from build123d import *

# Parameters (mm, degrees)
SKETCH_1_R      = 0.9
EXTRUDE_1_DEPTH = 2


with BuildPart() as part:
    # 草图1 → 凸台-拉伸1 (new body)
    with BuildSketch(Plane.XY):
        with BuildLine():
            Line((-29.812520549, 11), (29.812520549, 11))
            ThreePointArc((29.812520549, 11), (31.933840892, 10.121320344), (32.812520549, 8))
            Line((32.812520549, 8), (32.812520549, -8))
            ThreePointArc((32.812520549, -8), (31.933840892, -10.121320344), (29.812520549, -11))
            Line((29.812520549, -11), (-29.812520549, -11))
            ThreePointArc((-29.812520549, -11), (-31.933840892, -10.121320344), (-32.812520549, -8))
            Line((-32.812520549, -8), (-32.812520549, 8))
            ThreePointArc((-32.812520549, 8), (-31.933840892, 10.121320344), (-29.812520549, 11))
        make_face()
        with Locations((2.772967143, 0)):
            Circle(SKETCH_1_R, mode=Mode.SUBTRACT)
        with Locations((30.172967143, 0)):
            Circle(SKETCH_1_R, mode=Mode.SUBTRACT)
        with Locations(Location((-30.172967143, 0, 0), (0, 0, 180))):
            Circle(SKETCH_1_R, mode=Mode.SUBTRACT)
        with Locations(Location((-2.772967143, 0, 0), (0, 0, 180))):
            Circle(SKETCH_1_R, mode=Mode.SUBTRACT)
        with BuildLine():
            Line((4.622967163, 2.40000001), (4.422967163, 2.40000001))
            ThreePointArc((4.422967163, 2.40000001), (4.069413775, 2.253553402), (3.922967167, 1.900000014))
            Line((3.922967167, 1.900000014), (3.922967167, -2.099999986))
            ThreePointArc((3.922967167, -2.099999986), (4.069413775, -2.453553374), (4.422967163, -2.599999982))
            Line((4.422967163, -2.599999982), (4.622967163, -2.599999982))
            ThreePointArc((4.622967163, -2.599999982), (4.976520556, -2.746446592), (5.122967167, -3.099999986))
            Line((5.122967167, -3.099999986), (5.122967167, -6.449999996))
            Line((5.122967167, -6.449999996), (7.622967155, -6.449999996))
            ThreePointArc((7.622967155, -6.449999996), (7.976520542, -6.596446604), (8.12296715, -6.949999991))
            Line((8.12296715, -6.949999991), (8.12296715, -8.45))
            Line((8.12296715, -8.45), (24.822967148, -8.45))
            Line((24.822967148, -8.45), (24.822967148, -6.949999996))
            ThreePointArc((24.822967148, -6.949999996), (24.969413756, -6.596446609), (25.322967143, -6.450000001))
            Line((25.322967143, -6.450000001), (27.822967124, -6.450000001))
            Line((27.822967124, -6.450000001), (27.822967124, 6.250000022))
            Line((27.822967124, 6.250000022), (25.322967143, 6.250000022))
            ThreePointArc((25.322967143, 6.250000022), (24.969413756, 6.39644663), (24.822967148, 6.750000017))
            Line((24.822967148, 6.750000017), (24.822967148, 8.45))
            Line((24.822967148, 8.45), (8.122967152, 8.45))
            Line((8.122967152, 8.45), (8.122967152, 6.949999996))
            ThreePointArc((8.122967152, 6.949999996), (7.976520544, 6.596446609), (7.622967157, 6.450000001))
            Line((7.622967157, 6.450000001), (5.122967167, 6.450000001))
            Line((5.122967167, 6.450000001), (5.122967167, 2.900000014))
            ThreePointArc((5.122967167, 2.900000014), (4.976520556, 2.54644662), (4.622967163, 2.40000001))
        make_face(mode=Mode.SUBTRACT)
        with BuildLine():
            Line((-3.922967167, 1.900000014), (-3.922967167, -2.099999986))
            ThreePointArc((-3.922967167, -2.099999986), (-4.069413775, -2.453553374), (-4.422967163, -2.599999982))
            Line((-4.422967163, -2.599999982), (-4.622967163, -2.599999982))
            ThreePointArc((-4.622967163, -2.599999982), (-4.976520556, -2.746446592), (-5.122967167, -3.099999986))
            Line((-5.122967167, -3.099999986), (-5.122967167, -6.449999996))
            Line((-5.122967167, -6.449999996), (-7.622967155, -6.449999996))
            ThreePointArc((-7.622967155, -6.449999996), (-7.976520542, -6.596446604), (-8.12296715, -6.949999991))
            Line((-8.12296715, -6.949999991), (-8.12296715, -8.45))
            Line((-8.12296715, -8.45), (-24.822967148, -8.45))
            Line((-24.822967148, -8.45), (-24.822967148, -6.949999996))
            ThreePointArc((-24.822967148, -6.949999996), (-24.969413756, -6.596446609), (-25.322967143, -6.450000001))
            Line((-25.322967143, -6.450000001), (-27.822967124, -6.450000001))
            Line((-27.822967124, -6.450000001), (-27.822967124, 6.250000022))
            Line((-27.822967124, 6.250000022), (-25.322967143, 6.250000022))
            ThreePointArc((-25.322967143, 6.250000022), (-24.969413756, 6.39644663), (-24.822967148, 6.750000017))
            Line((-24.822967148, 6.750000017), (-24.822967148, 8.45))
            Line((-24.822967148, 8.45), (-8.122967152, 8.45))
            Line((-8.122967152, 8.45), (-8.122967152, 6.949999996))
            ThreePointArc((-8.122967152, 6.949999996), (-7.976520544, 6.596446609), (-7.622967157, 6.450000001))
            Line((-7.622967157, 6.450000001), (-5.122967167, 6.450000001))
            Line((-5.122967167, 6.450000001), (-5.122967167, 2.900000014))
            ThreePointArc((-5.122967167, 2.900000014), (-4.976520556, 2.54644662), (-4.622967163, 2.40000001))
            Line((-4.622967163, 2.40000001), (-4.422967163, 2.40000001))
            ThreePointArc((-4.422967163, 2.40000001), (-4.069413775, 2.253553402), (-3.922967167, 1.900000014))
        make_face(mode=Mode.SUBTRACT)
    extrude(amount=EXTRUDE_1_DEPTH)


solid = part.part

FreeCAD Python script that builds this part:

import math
import FreeCAD as App
import Part
import Sketcher
Q = App.Units.Quantity

doc = App.newDocument("Part")
body = doc.addObject("PartDesign::Body", "Body")

# Sketch on XY plane
sketch1 = doc.addObject("Sketcher::SketchObject", "Sketch")
body.addObject(sketch1)
sketch1.AttachmentSupport = (doc.XY_Plane, [""])
sketch1.MapMode = "FlatFace"
sketch1.addGeometry(Part.LineSegment(App.Vector(29.812521, 11, 0), App.Vector(-29.812521, 11, 0)), False)
sketch1.addGeometry(Part.ArcOfCircle(Part.Circle(App.Vector(-29.812521, 8, 0), App.Vector(0, 0, 1), 3), math.radians(90), math.radians(180)), False)
sketch1.addGeometry(Part.LineSegment(App.Vector(-32.812521, 8, 0), App.Vector(-32.812521, -8, 0)), False)
sketch1.addGeometry(Part.ArcOfCircle(Part.Circle(App.Vector(-29.812521, -8, 0), App.Vector(0, 0, 1), 3), math.radians(180), math.radians(270)), False)
sketch1.addGeometry(Part.LineSegment(App.Vector(-29.812521, -11, 0), App.Vector(29.812521, -11, 0)), False)
sketch1.addGeometry(Part.ArcOfCircle(Part.Circle(App.Vector(29.812521, -8, 0), App.Vector(0, 0, 1), 3), math.radians(-90), math.radians(0)), False)
sketch1.addGeometry(Part.LineSegment(App.Vector(32.812521, -8, 0), App.Vector(32.812521, 8, 0)), False)
sketch1.addGeometry(Part.ArcOfCircle(Part.Circle(App.Vector(29.812521, 8, 0), App.Vector(0, 0, 1), 3), math.radians(0), math.radians(90)), False)
sketch1.addGeometry(Part.Circle(App.Vector(30.172967, 0, 0), App.Vector(0, 0, 1), 0.9), False)
sketch1.addGeometry(Part.ArcOfCircle(Part.Circle(App.Vector(4.622967, 2.9, 0), App.Vector(0, 0, 1), 0.5), math.radians(-90), math.radians(0)), False)
sketch1.addGeometry(Part.LineSegment(App.Vector(5.122967, 2.9, 0), App.Vector(5.122967, 6.45, 0)), False)
sketch1.addGeometry(Part.LineSegment(App.Vector(5.122967, 6.45, 0), App.Vector(7.622967, 6.45, 0)), False)
sketch1.addGeometry(Part.ArcOfCircle(Part.Circle(App.Vector(7.622967, 6.95, 0), App.Vector(0, 0, 1), 0.5), math.radians(-90), math.radians(0)), False)
sketch1.addGeometry(Part.LineSegment(App.Vector(8.122967, 6.95, 0), App.Vector(8.122967, 8.45, 0)), False)
sketch1.addGeometry(Part.LineSegment(App.Vector(8.122967, 8.45, 0), App.Vector(24.822967, 8.45, 0)), False)
sketch1.addGeometry(Part.LineSegment(App.Vector(24.822967, 8.45, 0), App.Vector(24.822967, 6.75, 0)), False)
sketch1.addGeometry(Part.ArcOfCircle(Part.Circle(App.Vector(25.322967, 6.75, 0), App.Vector(0, 0, 1), 0.5), math.radians(180), math.radians(270)), False)
sketch1.addGeometry(Part.LineSegment(App.Vector(25.322967, 6.25, 0), App.Vector(27.822967, 6.25, 0)), False)
sketch1.addGeometry(Part.LineSegment(App.Vector(27.822967, 6.25, 0), App.Vector(27.822967, -6.45, 0)), False)
sketch1.addGeometry(Part.LineSegment(App.Vector(27.822967, -6.45, 0), App.Vector(25.322967, -6.45, 0)), False)
sketch1.addGeometry(Part.ArcOfCircle(Part.Circle(App.Vector(25.322967, -6.95, 0), App.Vector(0, 0, 1), 0.5), math.radians(90), math.radians(180)), False)
sketch1.addGeometry(Part.LineSegment(App.Vector(24.822967, -6.95, 0), App.Vector(24.822967, -8.45, 0)), False)
sketch1.addGeometry(Part.LineSegment(App.Vector(24.822967, -8.45, 0), App.Vector(8.122967, -8.45, 0)), False)
sketch1.addGeometry(Part.LineSegment(App.Vector(8.122967, -8.45, 0), App.Vector(8.122967, -6.95, 0)), False)
sketch1.addGeometry(Part.ArcOfCircle(Part.Circle(App.Vector(7.622967, -6.95, 0), App.Vector(0, 0, 1), 0.5), math.radians(0), math.radians(90)), False)
sketch1.addGeometry(Part.LineSegment(App.Vector(7.622967, -6.45, 0), App.Vector(5.122967, -6.45, 0)), False)
sketch1.addGeometry(Part.LineSegment(App.Vector(5.122967, -6.45, 0), App.Vector(5.122967, -3.1, 0)), False)
sketch1.addGeometry(Part.ArcOfCircle(Part.Circle(App.Vector(4.622967, -3.1, 0), App.Vector(0, 0, 1), 0.5), math.radians(0), math.radians(90)), False)
sketch1.addGeometry(Part.LineSegment(App.Vector(4.622967, -2.6, 0), App.Vector(4.422967, -2.6, 0)), False)
sketch1.addGeometry(Part.ArcOfCircle(Part.Circle(App.Vector(4.422967, -2.1, 0), App.Vector(0, 0, 1), 0.5), math.radians(180), math.radians(270)), False)
sketch1.addGeometry(Part.LineSegment(App.Vector(3.922967, -2.1, 0), App.Vector(3.922967, 1.9, 0)), False)
sketch1.addGeometry(Part.ArcOfCircle(Part.Circle(App.Vector(4.422967, 1.9, 0), App.Vector(0, 0, 1), 0.5), math.radians(90), math.radians(180)), False)
sketch1.addGeometry(Part.LineSegment(App.Vector(4.422967, 2.4, 0), App.Vector(4.622967, 2.4, 0)), False)
sketch1.addGeometry(Part.Circle(App.Vector(2.772967, 0, 0), App.Vector(0, 0, 1), 0.9), False)
sketch1.addGeometry(Part.Circle(App.Vector(-2.772967, 0, 0), App.Vector(0, 0, 1), 0.9), False)
sketch1.addGeometry(Part.LineSegment(App.Vector(-3.922967, 1.9, 0), App.Vector(-3.922967, -2.1, 0)), False)
sketch1.addGeometry(Part.ArcOfCircle(Part.Circle(App.Vector(-4.422967, -2.1, 0), App.Vector(0, 0, 1), 0.5), math.radians(-90), math.radians(0)), False)
sketch1.addGeometry(Part.LineSegment(App.Vector(-4.422967, -2.6, 0), App.Vector(-4.622967, -2.6, 0)), False)
sketch1.addGeometry(Part.ArcOfCircle(Part.Circle(App.Vector(-4.622967, -3.1, 0), App.Vector(0, 0, 1), 0.5), math.radians(90), math.radians(180)), False)
sketch1.addGeometry(Part.LineSegment(App.Vector(-5.122967, -3.1, 0), App.Vector(-5.122967, -6.45, 0)), False)
sketch1.addGeometry(Part.LineSegment(App.Vector(-5.122967, -6.45, 0), App.Vector(-7.622967, -6.45, 0)), False)
sketch1.addGeometry(Part.ArcOfCircle(Part.Circle(App.Vector(-7.622967, -6.95, 0), App.Vector(0, 0, 1), 0.5), math.radians(90), math.radians(180)), False)
sketch1.addGeometry(Part.LineSegment(App.Vector(-8.122967, -6.95, 0), App.Vector(-8.122967, -8.45, 0)), False)
sketch1.addGeometry(Part.LineSegment(App.Vector(-8.122967, -8.45, 0), App.Vector(-24.822967, -8.45, 0)), False)
sketch1.addGeometry(Part.LineSegment(App.Vector(-24.822967, -8.45, 0), App.Vector(-24.822967, -6.95, 0)), False)
sketch1.addGeometry(Part.ArcOfCircle(Part.Circle(App.Vector(-25.322967, -6.95, 0), App.Vector(0, 0, 1), 0.5), math.radians(0), math.radians(90)), False)
sketch1.addGeometry(Part.LineSegment(App.Vector(-25.322967, -6.45, 0), App.Vector(-27.822967, -6.45, 0)), False)
sketch1.addGeometry(Part.LineSegment(App.Vector(-27.822967, -6.45, 0), App.Vector(-27.822967, 6.25, 0)), False)
sketch1.addGeometry(Part.LineSegment(App.Vector(-27.822967, 6.25, 0), App.Vector(-25.322967, 6.25, 0)), False)
sketch1.addGeometry(Part.ArcOfCircle(Part.Circle(App.Vector(-25.322967, 6.75, 0), App.Vector(0, 0, 1), 0.5), math.radians(-90), math.radians(0)), False)
sketch1.addGeometry(Part.LineSegment(App.Vector(-24.822967, 6.75, 0), App.Vector(-24.822967, 8.45, 0)), False)
sketch1.addGeometry(Part.LineSegment(App.Vector(-24.822967, 8.45, 0), App.Vector(-8.122967, 8.45, 0)), False)
sketch1.addGeometry(Part.LineSegment(App.Vector(-8.122967, 8.45, 0), App.Vector(-8.122967, 6.95, 0)), False)
sketch1.addGeometry(Part.ArcOfCircle(Part.Circle(App.Vector(-7.622967, 6.95, 0), App.Vector(0, 0, 1), 0.5), math.radians(180), math.radians(270)), False)
sketch1.addGeometry(Part.LineSegment(App.Vector(-7.622967, 6.45, 0), App.Vector(-5.122967, 6.45, 0)), False)
sketch1.addGeometry(Part.LineSegment(App.Vector(-5.122967, 6.45, 0), App.Vector(-5.122967, 2.9, 0)), False)
sketch1.addGeometry(Part.ArcOfCircle(Part.Circle(App.Vector(-4.622967, 2.9, 0), App.Vector(0, 0, 1), 0.5), math.radians(180), math.radians(270)), False)
sketch1.addGeometry(Part.LineSegment(App.Vector(-4.622967, 2.4, 0), App.Vector(-4.422967, 2.4, 0)), False)
sketch1.addGeometry(Part.ArcOfCircle(Part.Circle(App.Vector(-4.422967, 1.9, 0), App.Vector(0, 0, 1), 0.5), math.radians(0), math.radians(90)), False)
sketch1.addGeometry(Part.Circle(App.Vector(-30.172967, 0, 0), App.Vector(0, 0, 1), 0.9), False)
sketch1.addConstraint(Sketcher.Constraint("Tangent", 0, 2, 1, 1))
sketch1.addConstraint(Sketcher.Constraint("Tangent", 1, 2, 2, 1))
sketch1.addConstraint(Sketcher.Constraint("Tangent", 2, 2, 3, 1))
sketch1.addConstraint(Sketcher.Constraint("Tangent", 3, 2, 4, 1))
sketch1.addConstraint(Sketcher.Constraint("Tangent", 4, 2, 5, 1))
sketch1.addConstraint(Sketcher.Constraint("Tangent", 5, 2, 6, 1))
sketch1.addConstraint(Sketcher.Constraint("Tangent", 6, 2, 7, 1))
sketch1.addConstraint(Sketcher.Constraint("Tangent", 7, 2, 0, 1))
sketch1.addConstraint(Sketcher.Constraint("Tangent", 9, 2, 10, 1))
sketch1.addConstraint(Sketcher.Constraint("Coincident", 10, 2, 11, 1))
sketch1.addConstraint(Sketcher.Constraint("Tangent", 11, 2, 12, 1))
sketch1.addConstraint(Sketcher.Constraint("Tangent", 12, 2, 13, 1))
sketch1.addConstraint(Sketcher.Constraint("Coincident", 13, 2, 14, 1))
sketch1.addConstraint(Sketcher.Constraint("Coincident", 14, 2, 15, 1))
sketch1.addConstraint(Sketcher.Constraint("Tangent", 15, 2, 16, 1))
sketch1.addConstraint(Sketcher.Constraint("Tangent", 16, 2, 17, 1))
sketch1.addConstraint(Sketcher.Constraint("Coincident", 17, 2, 18, 1))
sketch1.addConstraint(Sketcher.Constraint("Coincident", 18, 2, 19, 1))
sketch1.addConstraint(Sketcher.Constraint("Tangent", 19, 2, 20, 1))
sketch1.addConstraint(Sketcher.Constraint("Tangent", 20, 2, 21, 1))
sketch1.addConstraint(Sketcher.Constraint("Coincident", 21, 2, 22, 1))
sketch1.addConstraint(Sketcher.Constraint("Coincident", 22, 2, 23, 1))
sketch1.addConstraint(Sketcher.Constraint("Tangent", 23, 2, 24, 1))
sketch1.addConstraint(Sketcher.Constraint("Tangent", 24, 2, 25, 1))
sketch1.addConstraint(Sketcher.Constraint("Coincident", 25, 2, 26, 1))
sketch1.addConstraint(Sketcher.Constraint("Tangent", 26, 2, 27, 1))
sketch1.addConstraint(Sketcher.Constraint("Tangent", 27, 2, 28, 1))
sketch1.addConstraint(Sketcher.Constraint("Tangent", 28, 2, 29, 2))
sketch1.addConstraint(Sketcher.Constraint("Tangent", 29, 1, 30, 1))
sketch1.addConstraint(Sketcher.Constraint("Tangent", 30, 2, 31, 2))
sketch1.addConstraint(Sketcher.Constraint("Tangent", 31, 1, 32, 1))
sketch1.addConstraint(Sketcher.Constraint("Tangent", 32, 2, 9, 1))
sketch1.addConstraint(Sketcher.Constraint("Tangent", 35, 2, 36, 2))
sketch1.addConstraint(Sketcher.Constraint("Tangent", 36, 1, 37, 1))
sketch1.addConstraint(Sketcher.Constraint("Tangent", 37, 2, 38, 1))
sketch1.addConstraint(Sketcher.Constraint("Tangent", 38, 2, 39, 1))
sketch1.addConstraint(Sketcher.Constraint("Coincident", 39, 2, 40, 1))
sketch1.addConstraint(Sketcher.Constraint("Tangent", 40, 2, 41, 1))
sketch1.addConstraint(Sketcher.Constraint("Tangent", 41, 2, 42, 1))
sketch1.addConstraint(Sketcher.Constraint("Coincident", 42, 2, 43, 1))
sketch1.addConstraint(Sketcher.Constraint("Coincident", 43, 2, 44, 1))
sketch1.addConstraint(Sketcher.Constraint("Tangent", 44, 2, 45, 1))
sketch1.addConstraint(Sketcher.Constraint("Tangent", 45, 2, 46, 1))
sketch1.addConstraint(Sketcher.Constraint("Coincident", 46, 2, 47, 1))
sketch1.addConstraint(Sketcher.Constraint("Coincident", 47, 2, 48, 1))
sketch1.addConstraint(Sketcher.Constraint("Tangent", 48, 2, 49, 1))
sketch1.addConstraint(Sketcher.Constraint("Tangent", 49, 2, 50, 1))
sketch1.addConstraint(Sketcher.Constraint("Coincident", 50, 2, 51, 1))
sketch1.addConstraint(Sketcher.Constraint("Coincident", 51, 2, 52, 1))
sketch1.addConstraint(Sketcher.Constraint("Tangent", 52, 2, 53, 1))
sketch1.addConstraint(Sketcher.Constraint("Tangent", 53, 2, 54, 1))
sketch1.addConstraint(Sketcher.Constraint("Coincident", 54, 2, 55, 1))
sketch1.addConstraint(Sketcher.Constraint("Tangent", 55, 2, 56, 1))
sketch1.addConstraint(Sketcher.Constraint("Tangent", 56, 2, 57, 1))
sketch1.addConstraint(Sketcher.Constraint("Tangent", 57, 2, 58, 2))
sketch1.addConstraint(Sketcher.Constraint("Tangent", 58, 1, 35, 1))
sketch1.addConstraint(Sketcher.Constraint("Horizontal", 0))
sketch1.addConstraint(Sketcher.Constraint("Vertical", 2))
sketch1.addConstraint(Sketcher.Constraint("Horizontal", 4))
sketch1.addConstraint(Sketcher.Constraint("Vertical", 6))
sketch1.addConstraint(Sketcher.Constraint("Vertical", 10))
sketch1.addConstraint(Sketcher.Constraint("Horizontal", 11))
sketch1.addConstraint(Sketcher.Constraint("Vertical", 13))
sketch1.addConstraint(Sketcher.Constraint("Horizontal", 14))
sketch1.addConstraint(Sketcher.Constraint("Vertical", 15))
sketch1.addConstraint(Sketcher.Constraint("Horizontal", 17))
sketch1.addConstraint(Sketcher.Constraint("Vertical", 18))
sketch1.addConstraint(Sketcher.Constraint("Horizontal", 19))
sketch1.addConstraint(Sketcher.Constraint("Vertical", 21))
sketch1.addConstraint(Sketcher.Constraint("Horizontal", 22))
sketch1.addConstraint(Sketcher.Constraint("Vertical", 23))
sketch1.addConstraint(Sketcher.Constraint("Horizontal", 25))
sketch1.addConstraint(Sketcher.Constraint("Vertical", 26))
sketch1.addConstraint(Sketcher.Constraint("Horizontal", 28))
sketch1.addConstraint(Sketcher.Constraint("Vertical", 30))
sketch1.addConstraint(Sketcher.Constraint("Horizontal", 32))
sketch1.addConstraint(Sketcher.Constraint("Vertical", 35))
sketch1.addConstraint(Sketcher.Constraint("Horizontal", 37))
sketch1.addConstraint(Sketcher.Constraint("Vertical", 39))
sketch1.addConstraint(Sketcher.Constraint("Horizontal", 40))
sketch1.addConstraint(Sketcher.Constraint("Vertical", 42))
sketch1.addConstraint(Sketcher.Constraint("Horizontal", 43))
sketch1.addConstraint(Sketcher.Constraint("Vertical", 44))
sketch1.addConstraint(Sketcher.Constraint("Horizontal", 46))
sketch1.addConstraint(Sketcher.Constraint("Vertical", 47))
sketch1.addConstraint(Sketcher.Constraint("Horizontal", 48))
sketch1.addConstraint(Sketcher.Constraint("Vertical", 50))
sketch1.addConstraint(Sketcher.Constraint("Horizontal", 51))
sketch1.addConstraint(Sketcher.Constraint("Vertical", 52))
sketch1.addConstraint(Sketcher.Constraint("Horizontal", 54))
sketch1.addConstraint(Sketcher.Constraint("Vertical", 55))
sketch1.addConstraint(Sketcher.Constraint("Horizontal", 57))
sketch1.addConstraint(Sketcher.Constraint("Equal", 1, 3))
sketch1.addConstraint(Sketcher.Constraint("Equal", 3, 5))
sketch1.addConstraint(Sketcher.Constraint("Equal", 5, 7))
sketch1.addConstraint(Sketcher.Constraint("Equal", 9, 12))
sketch1.addConstraint(Sketcher.Constraint("Equal", 12, 16))
sketch1.addConstraint(Sketcher.Constraint("Equal", 16, 20))
sketch1.addConstraint(Sketcher.Constraint("Equal", 20, 24))
sketch1.addConstraint(Sketcher.Constraint("Equal", 24, 27))
sketch1.addConstraint(Sketcher.Constraint("Equal", 27, 29))
sketch1.addConstraint(Sketcher.Constraint("Equal", 29, 31))
sketch1.addConstraint(Sketcher.Constraint("Equal", 8, 33))
sketch1.addConstraint(Sketcher.Constraint("Equal", 33, 34))
sketch1.addConstraint(Sketcher.Constraint("Equal", 31, 36))
sketch1.addConstraint(Sketcher.Constraint("Equal", 36, 38))
sketch1.addConstraint(Sketcher.Constraint("Equal", 38, 41))
sketch1.addConstraint(Sketcher.Constraint("Equal", 41, 45))
sketch1.addConstraint(Sketcher.Constraint("Equal", 45, 49))
sketch1.addConstraint(Sketcher.Constraint("Equal", 49, 53))
sketch1.addConstraint(Sketcher.Constraint("Equal", 53, 56))
sketch1.addConstraint(Sketcher.Constraint("Equal", 56, 58))
sketch1.addConstraint(Sketcher.Constraint("Equal", 34, 59))
sketch1.addConstraint(Sketcher.Constraint("Symmetric", 1, 3, 5, 3, -1, 1))
sketch1.addConstraint(Sketcher.Constraint("Symmetric", 33, 3, 34, 3, -1, 1))
sketch1.addConstraint(Sketcher.Constraint("Symmetric", 12, 3, 41, 3, -1, 1))
sketch1.addConstraint(Sketcher.Constraint("Symmetric", 24, 3, 53, 3, -1, 1))
sketch1.addConstraint(Sketcher.Constraint("Symmetric", 8, 3, 59, 3, -1, 1))
sketch1.addConstraint(Sketcher.Constraint("Symmetric", 14, 2, 43, 2, -1, 1))
sketch1.addConstraint(Sketcher.Constraint("Symmetric", 21, 2, 50, 2, -1, 1))
sketch1.addConstraint(Sketcher.Constraint("Symmetric", 29, 3, 36, 3, -2))
sketch1.addConstraint(Sketcher.Constraint("Symmetric", 24, 3, 41, 3, -2))
sketch1.addConstraint(Sketcher.Constraint("Symmetric", 20, 3, 45, 3, -2))
sketch1.addConstraint(Sketcher.Constraint("Symmetric", 9, 3, 56, 3, -2))
sketch1.addConstraint(Sketcher.Constraint("Symmetric", 17, 2, 47, 2, -2))
sketch1.addConstraint(Sketcher.Constraint("PointOnObject", 8, 3, -1))
sketch1.addConstraint(Sketcher.Constraint("PointOnObject", 33, 3, -1))
sketch1.addConstraint(Sketcher.Constraint("Horizontal", 20, 3, 24, 3))
sketch1.addConstraint(Sketcher.Constraint("Horizontal", 22, 2, 42, 2))
sketch1.addConstraint(Sketcher.Constraint("Vertical", 9, 3, 27, 3))
sketch1.addConstraint(Sketcher.Constraint("Vertical", 38, 3, 56, 3))
sketch1.addConstraint(Sketcher.Constraint("Equal", 11, 17))
sketch1.addConstraint(Sketcher.Constraint("Radius", 1, Q("3 mm")))
sketch1.addConstraint(Sketcher.Constraint("Diameter", 8, Q("1.8 mm")))
sketch1.addConstraint(Sketcher.Constraint("Radius", 9, Q("0.5 mm")))
sketch1.addConstraint(Sketcher.Constraint("DistanceY", 2, 2, 2, 1, Q("16 mm")))
sketch1.addConstraint(Sketcher.Constraint("DistanceY", 30, 1, 30, 2, Q("4 mm")))
sketch1.addConstraint(Sketcher.Constraint("DistanceX", 11, 1, 11, 2, Q("2.5 mm")))
sketch1.addConstraint(Sketcher.Constraint("DistanceX", 14, 1, 14, 2, Q("16.7 mm")))
sketch1.addConstraint(Sketcher.Constraint("DistanceX", 28, 2, 28, 1, Q("0.2 mm")))
sketch1.addConstraint(Sketcher.Constraint("DistanceY", 13, 1, 13, 2, Q("1.5 mm")))
sketch1.addConstraint(Sketcher.Constraint("DistanceY", 15, 2, 15, 1, Q("1.7 mm")))
sketch1.addConstraint(Sketcher.Constraint("DistanceY", 18, 2, 18, 1, Q("12.7 mm")))
sketch1.addConstraint(Sketcher.Constraint("DistanceY", 10, 1, 10, 2, Q("3.55 mm")))
sketch1.addConstraint(Sketcher.Constraint("DistanceX", 0, 2, 0, 1, Q("59.625041 mm")))
sketch1.addConstraint(Sketcher.Constraint("DistanceX", -1, 1, 8, 3, Q("30.172967 mm")))
sketch1.addConstraint(Sketcher.Constraint("DistanceX", -1, 1, 9, 3, Q("4.622967 mm")))
sketch1.addConstraint(Sketcher.Constraint("DistanceX", -1, 1, 33, 3, Q("2.772967 mm")))
pad1 = doc.addObject("PartDesign::Pad", "Pad")
body.addObject(pad1)
pad1.Profile = sketch1
pad1.Length = 2

doc.recompute()
